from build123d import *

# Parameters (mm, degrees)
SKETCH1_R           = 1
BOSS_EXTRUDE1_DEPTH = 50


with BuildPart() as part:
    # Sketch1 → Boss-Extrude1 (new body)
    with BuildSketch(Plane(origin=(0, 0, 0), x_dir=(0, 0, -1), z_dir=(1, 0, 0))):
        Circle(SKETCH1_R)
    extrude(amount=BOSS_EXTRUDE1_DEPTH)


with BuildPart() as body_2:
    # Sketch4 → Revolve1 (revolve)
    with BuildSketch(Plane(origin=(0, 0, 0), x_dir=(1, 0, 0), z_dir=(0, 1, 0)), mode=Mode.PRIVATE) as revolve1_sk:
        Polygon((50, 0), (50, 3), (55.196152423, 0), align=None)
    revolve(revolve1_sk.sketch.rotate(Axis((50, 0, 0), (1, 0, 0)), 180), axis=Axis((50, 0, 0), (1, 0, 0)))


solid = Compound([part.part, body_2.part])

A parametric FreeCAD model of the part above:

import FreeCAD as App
import Part
import Sketcher
from FreeCAD import Vector
Q = App.Units.Quantity


def add_polygon(sketch, points):
    """Adds a closed chain of lines whose ends are joined by coincident constraints."""
    first, n = sketch.GeometryCount, len(points)
    for a, b in zip(points, points[1:] + points[:1]):
        sketch.addGeometry(Part.LineSegment(App.Vector(*a, 0), App.Vector(*b, 0)), False)
    for i in range(n):
        sketch.addConstraint(Sketcher.Constraint("Coincident", first + i, 2, first + (i + 1) % n, 1))

doc = App.newDocument("Part")
body = doc.addObject("PartDesign::Body", "Body")

sketch1 = doc.addObject("Sketcher::SketchObject", "Sketch")
body.addObject(sketch1)
sketch1.AttachmentSupport = (doc.YZ_Plane, [""])
sketch1.MapMode = "FlatFace"
sketch1.addGeometry(Part.Circle(Vector(0, 0, 0), Vector(0, 0, 1), 1), False)
sketch1.addConstraint(Sketcher.Constraint("Coincident", 0, 3, -1, 1))
sketch1.addConstraint(Sketcher.Constraint("Diameter", 0, Q("2 mm")))
pad1 = doc.addObject("PartDesign::Pad", "Pad")
body.addObject(pad1)
pad1.Profile = sketch1
pad1.Length = 50
body2 = doc.addObject("PartDesign::Body", "Body001")

sketch2 = doc.addObject("Sketcher::SketchObject", "Sketch001")
body2.addObject(sketch2)
sketch2.AttachmentSupport = (doc.getObject("XZ_Plane001"), [""])
sketch2.MapMode = "FlatFace"
add_polygon(sketch2, [(50, -3), (50, 0), (55.2, 0)])
sketch2.addConstraint(Sketcher.Constraint("Vertical", 0))
sketch2.addConstraint(Sketcher.Constraint("Horizontal", 1))
sketch2.addConstraint(Sketcher.Constraint("PointOnObject", 0, 2, -1))
sketch2.addConstraint(Sketcher.Constraint("DistanceY", 0, 1, 0, 2, Q("3 mm")))
sketch2.addConstraint(Sketcher.Constraint("Angle", 2, Q("-150 deg")))
sketch2.addConstraint(Sketcher.Constraint("DistanceX", -1, 1, 0, 2, Q("50 mm")))
revolution = doc.addObject("PartDesign::Revolution", "Revolution")
body2.addObject(revolution)
revolution.Profile = sketch2
revolution.ReferenceAxis = (sketch2, ["H_Axis"])
revolution.Angle = 360

doc.recompute()
